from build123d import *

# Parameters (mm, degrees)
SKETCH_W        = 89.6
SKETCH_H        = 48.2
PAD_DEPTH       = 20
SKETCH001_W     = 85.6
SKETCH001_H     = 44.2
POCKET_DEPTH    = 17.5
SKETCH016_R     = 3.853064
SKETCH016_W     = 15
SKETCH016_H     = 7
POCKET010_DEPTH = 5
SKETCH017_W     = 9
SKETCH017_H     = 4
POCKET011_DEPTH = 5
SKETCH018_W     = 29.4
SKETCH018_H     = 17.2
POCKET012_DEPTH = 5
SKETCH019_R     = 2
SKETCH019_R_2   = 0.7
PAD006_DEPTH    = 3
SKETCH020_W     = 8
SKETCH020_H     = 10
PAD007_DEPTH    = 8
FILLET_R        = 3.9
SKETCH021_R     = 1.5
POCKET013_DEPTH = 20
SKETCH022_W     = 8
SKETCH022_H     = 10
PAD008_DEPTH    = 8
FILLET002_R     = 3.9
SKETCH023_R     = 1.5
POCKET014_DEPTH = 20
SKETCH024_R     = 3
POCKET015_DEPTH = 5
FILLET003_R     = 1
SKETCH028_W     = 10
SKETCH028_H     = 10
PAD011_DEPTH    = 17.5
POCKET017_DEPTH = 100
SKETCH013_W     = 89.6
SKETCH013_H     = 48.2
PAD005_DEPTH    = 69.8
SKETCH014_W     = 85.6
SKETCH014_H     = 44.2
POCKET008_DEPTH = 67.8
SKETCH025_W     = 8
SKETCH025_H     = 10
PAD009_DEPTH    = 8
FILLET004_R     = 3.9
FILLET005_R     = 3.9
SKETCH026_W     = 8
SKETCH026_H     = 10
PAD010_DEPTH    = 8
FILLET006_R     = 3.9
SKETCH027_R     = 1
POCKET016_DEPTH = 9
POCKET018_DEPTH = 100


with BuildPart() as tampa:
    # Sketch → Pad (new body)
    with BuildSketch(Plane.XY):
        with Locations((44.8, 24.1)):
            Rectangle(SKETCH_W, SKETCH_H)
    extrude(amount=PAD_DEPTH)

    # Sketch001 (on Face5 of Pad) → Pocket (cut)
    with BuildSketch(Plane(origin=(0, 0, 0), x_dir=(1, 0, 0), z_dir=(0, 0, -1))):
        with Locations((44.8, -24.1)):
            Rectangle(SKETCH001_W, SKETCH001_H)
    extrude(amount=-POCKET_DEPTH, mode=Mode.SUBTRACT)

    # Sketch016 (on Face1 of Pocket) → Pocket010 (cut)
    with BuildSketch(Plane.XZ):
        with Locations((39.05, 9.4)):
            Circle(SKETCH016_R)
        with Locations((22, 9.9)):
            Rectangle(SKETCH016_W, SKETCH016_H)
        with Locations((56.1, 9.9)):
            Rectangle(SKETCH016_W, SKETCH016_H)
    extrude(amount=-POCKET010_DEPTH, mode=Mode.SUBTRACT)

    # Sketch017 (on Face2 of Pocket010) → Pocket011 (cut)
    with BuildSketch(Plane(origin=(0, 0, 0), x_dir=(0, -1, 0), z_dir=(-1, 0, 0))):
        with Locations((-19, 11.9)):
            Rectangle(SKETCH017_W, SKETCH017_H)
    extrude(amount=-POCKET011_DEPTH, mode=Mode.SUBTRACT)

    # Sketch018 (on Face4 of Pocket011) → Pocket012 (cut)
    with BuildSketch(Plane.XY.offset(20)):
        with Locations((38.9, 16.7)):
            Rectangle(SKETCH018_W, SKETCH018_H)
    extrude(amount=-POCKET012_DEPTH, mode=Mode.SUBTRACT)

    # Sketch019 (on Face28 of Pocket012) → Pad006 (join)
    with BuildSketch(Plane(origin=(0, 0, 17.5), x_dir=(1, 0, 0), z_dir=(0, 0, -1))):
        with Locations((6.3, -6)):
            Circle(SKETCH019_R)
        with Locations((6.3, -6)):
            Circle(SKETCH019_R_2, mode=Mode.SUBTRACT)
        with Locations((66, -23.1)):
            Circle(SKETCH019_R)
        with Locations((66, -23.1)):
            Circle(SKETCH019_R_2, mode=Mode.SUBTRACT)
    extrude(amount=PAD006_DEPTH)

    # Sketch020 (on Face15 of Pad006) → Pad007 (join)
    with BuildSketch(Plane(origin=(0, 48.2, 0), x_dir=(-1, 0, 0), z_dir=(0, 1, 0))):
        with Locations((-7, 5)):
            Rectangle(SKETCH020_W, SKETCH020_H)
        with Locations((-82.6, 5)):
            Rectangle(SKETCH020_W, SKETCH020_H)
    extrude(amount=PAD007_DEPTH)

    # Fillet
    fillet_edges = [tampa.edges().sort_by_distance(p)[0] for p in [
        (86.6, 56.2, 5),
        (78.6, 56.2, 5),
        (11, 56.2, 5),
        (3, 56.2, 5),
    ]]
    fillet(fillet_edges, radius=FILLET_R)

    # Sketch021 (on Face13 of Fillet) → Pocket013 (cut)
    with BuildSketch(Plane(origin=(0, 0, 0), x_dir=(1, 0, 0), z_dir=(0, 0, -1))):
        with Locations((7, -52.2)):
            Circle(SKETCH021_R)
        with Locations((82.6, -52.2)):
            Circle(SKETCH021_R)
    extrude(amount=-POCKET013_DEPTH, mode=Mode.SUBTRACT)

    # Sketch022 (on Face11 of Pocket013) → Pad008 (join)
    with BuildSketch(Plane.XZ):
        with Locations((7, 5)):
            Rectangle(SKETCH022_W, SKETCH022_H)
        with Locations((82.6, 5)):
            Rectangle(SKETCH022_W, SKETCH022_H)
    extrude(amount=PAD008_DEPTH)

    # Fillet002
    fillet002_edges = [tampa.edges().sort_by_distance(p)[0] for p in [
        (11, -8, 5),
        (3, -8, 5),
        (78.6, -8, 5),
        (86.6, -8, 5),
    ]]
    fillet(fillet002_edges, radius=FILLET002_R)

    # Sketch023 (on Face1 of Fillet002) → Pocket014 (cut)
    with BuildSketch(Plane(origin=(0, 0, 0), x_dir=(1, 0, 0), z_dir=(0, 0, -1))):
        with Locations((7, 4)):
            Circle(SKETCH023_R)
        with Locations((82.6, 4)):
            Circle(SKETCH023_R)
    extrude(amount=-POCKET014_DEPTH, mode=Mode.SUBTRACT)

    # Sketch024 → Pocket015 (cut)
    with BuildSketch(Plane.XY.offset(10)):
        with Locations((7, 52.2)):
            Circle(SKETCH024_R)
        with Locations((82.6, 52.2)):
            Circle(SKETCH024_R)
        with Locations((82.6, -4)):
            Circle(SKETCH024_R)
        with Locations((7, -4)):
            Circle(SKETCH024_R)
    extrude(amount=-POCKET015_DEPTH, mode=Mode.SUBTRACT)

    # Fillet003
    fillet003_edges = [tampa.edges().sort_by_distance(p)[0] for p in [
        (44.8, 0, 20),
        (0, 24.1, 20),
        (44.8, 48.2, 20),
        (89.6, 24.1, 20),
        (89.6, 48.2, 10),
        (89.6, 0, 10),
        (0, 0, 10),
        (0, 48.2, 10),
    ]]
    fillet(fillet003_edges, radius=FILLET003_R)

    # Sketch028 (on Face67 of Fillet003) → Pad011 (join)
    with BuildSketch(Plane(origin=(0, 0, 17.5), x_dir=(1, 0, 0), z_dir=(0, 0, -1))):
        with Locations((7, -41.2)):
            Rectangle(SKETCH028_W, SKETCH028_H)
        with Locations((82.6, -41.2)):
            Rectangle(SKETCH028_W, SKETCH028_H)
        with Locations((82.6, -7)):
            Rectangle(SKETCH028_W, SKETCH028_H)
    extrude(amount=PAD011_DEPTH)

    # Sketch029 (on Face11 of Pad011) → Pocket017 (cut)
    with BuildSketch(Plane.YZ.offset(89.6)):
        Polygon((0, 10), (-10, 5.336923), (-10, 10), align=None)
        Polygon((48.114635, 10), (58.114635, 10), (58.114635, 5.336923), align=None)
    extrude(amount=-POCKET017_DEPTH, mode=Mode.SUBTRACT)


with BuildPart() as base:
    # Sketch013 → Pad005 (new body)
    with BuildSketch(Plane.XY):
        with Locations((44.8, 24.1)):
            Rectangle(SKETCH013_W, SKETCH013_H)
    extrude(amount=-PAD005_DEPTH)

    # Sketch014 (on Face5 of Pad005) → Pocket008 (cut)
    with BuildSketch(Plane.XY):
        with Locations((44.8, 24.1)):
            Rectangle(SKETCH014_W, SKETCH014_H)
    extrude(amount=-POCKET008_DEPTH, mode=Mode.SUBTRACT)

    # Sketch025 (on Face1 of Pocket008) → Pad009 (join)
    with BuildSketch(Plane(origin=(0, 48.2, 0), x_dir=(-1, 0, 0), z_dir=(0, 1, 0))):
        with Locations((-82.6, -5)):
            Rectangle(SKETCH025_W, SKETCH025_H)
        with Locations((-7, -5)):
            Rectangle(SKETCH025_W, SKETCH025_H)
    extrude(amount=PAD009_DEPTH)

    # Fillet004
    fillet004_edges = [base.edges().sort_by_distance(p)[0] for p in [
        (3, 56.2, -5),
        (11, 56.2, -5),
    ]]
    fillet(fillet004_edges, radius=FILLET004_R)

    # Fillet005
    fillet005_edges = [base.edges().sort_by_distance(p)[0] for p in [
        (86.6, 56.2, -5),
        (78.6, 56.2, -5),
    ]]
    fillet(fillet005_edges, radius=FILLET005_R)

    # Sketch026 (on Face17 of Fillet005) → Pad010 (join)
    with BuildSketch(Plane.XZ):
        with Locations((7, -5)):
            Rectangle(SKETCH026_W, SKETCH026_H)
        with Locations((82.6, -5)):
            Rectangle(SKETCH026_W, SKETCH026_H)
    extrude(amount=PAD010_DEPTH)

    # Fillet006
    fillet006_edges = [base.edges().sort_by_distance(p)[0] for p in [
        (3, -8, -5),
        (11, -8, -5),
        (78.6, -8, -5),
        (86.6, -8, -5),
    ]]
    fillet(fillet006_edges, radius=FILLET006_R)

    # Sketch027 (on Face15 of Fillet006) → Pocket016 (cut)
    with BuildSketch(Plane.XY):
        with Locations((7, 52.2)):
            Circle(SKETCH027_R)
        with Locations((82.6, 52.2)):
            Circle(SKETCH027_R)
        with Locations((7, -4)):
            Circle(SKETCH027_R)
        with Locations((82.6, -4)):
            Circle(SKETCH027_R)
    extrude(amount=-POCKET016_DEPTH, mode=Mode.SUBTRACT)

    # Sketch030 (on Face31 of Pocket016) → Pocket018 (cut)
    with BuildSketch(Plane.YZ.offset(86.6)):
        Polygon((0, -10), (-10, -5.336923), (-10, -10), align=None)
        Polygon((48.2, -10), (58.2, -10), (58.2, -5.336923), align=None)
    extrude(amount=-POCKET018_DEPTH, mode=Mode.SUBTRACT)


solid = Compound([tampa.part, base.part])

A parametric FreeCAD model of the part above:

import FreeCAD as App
import Part
import Sketcher

V = App.Vector
Q = App.Units.Quantity


def edges_at(feature, points):
    """Names of the edges that pass closest to the given points."""
    edges = feature.Shape.Edges
    near = lambda p: min(range(len(edges)), key=lambda i: edges[i].distToShape(Part.Vertex(*p))[0])
    return sorted({f"Edge{near(p) + 1}" for p in points})


def add_polygon(sketch, points):
    """Adds a closed chain of lines whose ends are joined by coincident constraints."""
    first, n = sketch.GeometryCount, len(points)
    for a, b in zip(points, points[1:] + points[:1]):
        sketch.addGeometry(Part.LineSegment(App.Vector(*a, 0), App.Vector(*b, 0)), False)
    for i in range(n):
        sketch.addConstraint(Sketcher.Constraint("Coincident", first + i, 2, first + (i + 1) % n, 1))

doc = App.newDocument("Part")
body = doc.addObject("PartDesign::Body", "Body")

sketch1 = body.newObject("Sketcher::SketchObject", "Sketch")
sketch1.AttachmentSupport = (doc.getObject("XY_Plane"), [""])
sketch1.MapMode = "FlatFace"
add_polygon(sketch1, [(0, 48), (0, 0), (90, 0), (90, 48)])
sketch1.addConstraint(Sketcher.Constraint("Vertical", 0))
sketch1.addConstraint(Sketcher.Constraint("Horizontal", 1))
sketch1.addConstraint(Sketcher.Constraint("Vertical", 2))
sketch1.addConstraint(Sketcher.Constraint("Horizontal", 3))
sketch1.addConstraint(Sketcher.Constraint("Coincident", 0, 2, -1, 1))
sketch1.addConstraint(Sketcher.Constraint("DistanceX", 1, 1, 1, 2, 89.6))
sketch1.addConstraint(Sketcher.Constraint("DistanceY", 0, 2, 0, 1, 48.2))
pad1 = body.newObject("PartDesign::Pad", "Pad")
pad1.Profile = sketch1
pad1.Length = 20

sketch2 = body.newObject("Sketcher::SketchObject", "Sketch001")
sketch2.AttachmentSupport = (doc.getObject("XY_Plane"), [""])
sketch2.MapMode = "FlatFace"
add_polygon(sketch2, [(2, 2), (2, 46), (88, 46), (88, 2)])
sketch2.addConstraint(Sketcher.Constraint("Vertical", 0))
sketch2.addConstraint(Sketcher.Constraint("Horizontal", 1))
sketch2.addConstraint(Sketcher.Constraint("Vertical", 2))
sketch2.addConstraint(Sketcher.Constraint("Horizontal", 3))
sketch2.addConstraint(Sketcher.Constraint("DistanceX", 1, 1, 1, 2, 85.6))
sketch2.addConstraint(Sketcher.Constraint("DistanceY", 0, 1, 0, 2, 44.2))
sketch2.addConstraint(Sketcher.Constraint("DistanceX", -1, 1, 0, 2, 2.0))
sketch2.addConstraint(Sketcher.Constraint("DistanceY", -1, 1, 2, 2, 2.0))
pocket1 = body.newObject("PartDesign::Pocket", "Pocket")
pocket1.Profile = sketch2
pocket1.Length = 17.5
pocket1.Reversed = True

sketch3 = body.newObject("Sketcher::SketchObject", "Sketch002")
sketch3.AttachmentSupport = (doc.getObject("XZ_Plane"), [""])
sketch3.MapMode = "FlatFace"
sketch3.addGeometry(Part.Circle(V(39, 9.4, 0), V(0, 0, 1), 3.9), False)
add_polygon(sketch3, [(14.5, 13.4), (14.5, 6.4), (29.5, 6.4), (29.5, 13.4)])
add_polygon(sketch3, [(48.6, 13.4), (48.6, 6.4), (63.6, 6.4), (63.6, 13.4)])
sketch3.addConstraint(Sketcher.Constraint("Vertical", 1))
sketch3.addConstraint(Sketcher.Constraint("Horizontal", 2))
sketch3.addConstraint(Sketcher.Constraint("Vertical", 3))
sketch3.addConstraint(Sketcher.Constraint("Horizontal", 4))
sketch3.addConstraint(Sketcher.Constraint("Vertical", 5))
sketch3.addConstraint(Sketcher.Constraint("Horizontal", 6))
sketch3.addConstraint(Sketcher.Constraint("Vertical", 7))
sketch3.addConstraint(Sketcher.Constraint("Horizontal", 8))
sketch3.addConstraint(Sketcher.Constraint("Horizontal", 2, 2, 5, 2))
sketch3.addConstraint(Sketcher.Constraint("Horizontal", 4, 2, 7, 2))
sketch3.addConstraint(Sketcher.Constraint("Equal", 4, 6))
sketch3.addConstraint(Sketcher.Constraint("DistanceX", 2, 1, 2, 2, 15.0))
sketch3.addConstraint(Sketcher.Constraint("DistanceY", 1, 2, 1, 1, 7.0))
sketch3.addConstraint(Sketcher.Constraint("DistanceY", 1, 2, 0, 3, 3.0))
sketch3.addConstraint(Sketcher.Constraint("DistanceY", -1, 1, 0, 3, 9.4))
sketch3.addConstraint(Sketcher.Constraint("DistanceX", -1, 1, 1, 2, 14.5))
sketch3.addConstraint(Sketcher.Constraint("DistanceX", -1, 1, 5, 2, 48.6))
sketch3.addConstraint(Sketcher.Constraint("DistanceX", -1, 1, 0, 3, 39.05))
sketch3.addConstraint(Sketcher.Constraint("Diameter", 0, 7.706128))
pocket2 = body.newObject("PartDesign::Pocket", "Pocket001")
pocket2.Profile = sketch3
pocket2.Length = 5

sketch4 = body.newObject("Sketcher::SketchObject", "Sketch003")
sketch4.AttachmentSupport = (doc.getObject("YZ_Plane"), [""])
sketch4.MapMode = "FlatFace"
add_polygon(sketch4, [(23.5, 13.9), (23.5, 9.9), (14.5, 9.9), (14.5, 13.9)])
sketch4.addConstraint(Sketcher.Constraint("Vertical", 0))
sketch4.addConstraint(Sketcher.Constraint("Horizontal", 1))
sketch4.addConstraint(Sketcher.Constraint("Vertical", 2))
sketch4.addConstraint(Sketcher.Constraint("Horizontal", 3))
sketch4.addConstraint(Sketcher.Constraint("DistanceX", 1, 2, 1, 1, 9.0))
sketch4.addConstraint(Sketcher.Constraint("DistanceY", 0, 2, 0, 1, 4.0))
sketch4.addConstraint(Sketcher.Constraint("DistanceX", -1, 1, 0, 2, 23.5))
sketch4.addConstraint(Sketcher.Constraint("DistanceY", -1, 1, 0, 2, 9.9))
pocket3 = body.newObject("PartDesign::Pocket", "Pocket002")
pocket3.Profile = sketch4
pocket3.Length = 5
pocket3.Reversed = True

sketch5 = body.newObject("Sketcher::SketchObject", "Sketch004")
sketch5.AttachmentSupport = (doc.getObject("XY_Plane"), [""])
sketch5.MapMode = "FlatFace"
sketch5.AttachmentOffset = App.Placement(V(0, 0, 20), App.Rotation())
add_polygon(sketch5, [(24, 25), (24, 8), (54, 8), (54, 25)])
sketch5.addConstraint(Sketcher.Constraint("Vertical", 0))
sketch5.addConstraint(Sketcher.Constraint("Horizontal", 1))
sketch5.addConstraint(Sketcher.Constraint("Vertical", 2))
sketch5.addConstraint(Sketcher.Constraint("Horizontal", 3))
sketch5.addConstraint(Sketcher.Constraint("DistanceX", 1, 1, 1, 2, 29.4))
sketch5.addConstraint(Sketcher.Constraint("DistanceY", 0, 2, 0, 1, 17.2))
sketch5.addConstraint(Sketcher.Constraint("DistanceX", -1, 1, 0, 2, 24.2))
sketch5.addConstraint(Sketcher.Constraint("DistanceY", -1, 1, 0, 2, 8.1))
pocket4 = body.newObject("PartDesign::Pocket", "Pocket003")
pocket4.Profile = sketch5
pocket4.Length = 5

sketch6 = body.newObject("Sketcher::SketchObject", "Sketch005")
sketch6.AttachmentSupport = (doc.getObject("XY_Plane"), [""])
sketch6.MapMode = "FlatFace"
sketch6.AttachmentOffset = App.Placement(V(0, 0, 17.5), App.Rotation())
sketch6.addGeometry(Part.Circle(V(6.3, 6, 0), V(0, 0, 1), 2), False)
sketch6.addGeometry(Part.Circle(V(6.3, 6, 0), V(0, 0, 1), 0.7), False)
sketch6.addGeometry(Part.Circle(V(66, 23.1, 0), V(0, 0, 1), 2), False)
sketch6.addGeometry(Part.Circle(V(66, 23.1, 0), V(0, 0, 1), 0.7), False)
sketch6.addConstraint(Sketcher.Constraint("Coincident", 1, 3, 0, 3))
sketch6.addConstraint(Sketcher.Constraint("Coincident", 3, 3, 2, 3))
sketch6.addConstraint(Sketcher.Constraint("Equal", 0, 2))
sketch6.addConstraint(Sketcher.Constraint("Equal", 1, 3))
sketch6.addConstraint(Sketcher.Constraint("Diameter", 0, 4.0))
sketch6.addConstraint(Sketcher.Constraint("Diameter", 1, 1.4))
sketch6.addConstraint(Sketcher.Constraint("DistanceY", -1, 1, 0, 3, 6.0))
sketch6.addConstraint(Sketcher.Constraint("DistanceX", -1, 1, 2, 3, 66.0))
sketch6.addConstraint(Sketcher.Constraint("DistanceX", -1, 1, 0, 3, 6.3))
sketch6.addConstraint(Sketcher.Constraint("DistanceY", -1, 1, 2, 3, 23.1))
pad2 = body.newObject("PartDesign::Pad", "Pad001")
pad2.Profile = sketch6
pad2.Length = 3
pad2.Reversed = True

sketch7 = body.newObject("Sketcher::SketchObject", "Sketch006")
sketch7.AttachmentSupport = (doc.getObject("XZ_Plane"), [""])
sketch7.MapMode = "FlatFace"
sketch7.AttachmentOffset = App.Placement(V(0, 0, -48.2), App.Rotation())
add_polygon(sketch7, [(11, 10), (11, 0), (3, 0), (3, 10)])
add_polygon(sketch7, [(87, 10), (87, 0), (79, 0), (79, 10)])
sketch7.addConstraint(Sketcher.Constraint("Vertical", 0))
sketch7.addConstraint(Sketcher.Constraint("Horizontal", 1))
sketch7.addConstraint(Sketcher.Constraint("Vertical", 2))
sketch7.addConstraint(Sketcher.Constraint("Horizontal", 3))
sketch7.addConstraint(Sketcher.Constraint("Vertical", 4))
sketch7.addConstraint(Sketcher.Constraint("Horizontal", 5))
sketch7.addConstraint(Sketcher.Constraint("Vertical", 6))
sketch7.addConstraint(Sketcher.Constraint("Horizontal", 7))
sketch7.addConstraint(Sketcher.Constraint("PointOnObject", 0, 2, -1))
sketch7.addConstraint(Sketcher.Constraint("PointOnObject", 4, 2, -1))
sketch7.addConstraint(Sketcher.Constraint("Horizontal", 3, 2, 6, 2))
sketch7.addConstraint(Sketcher.Constraint("Equal", 3, 5))
sketch7.addConstraint(Sketcher.Constraint("DistanceX", 1, 2, 1, 1, 8.0))
sketch7.addConstraint(Sketcher.Constraint("DistanceY", 0, 2, 0, 1, 10.0))
sketch7.addConstraint(Sketcher.Constraint("DistanceX", -1, 1, 0, 2, 11.0))
sketch7.addConstraint(Sketcher.Constraint("DistanceX", -1, 1, 4, 2, 86.6))
pad3 = body.newObject("PartDesign::Pad", "Pad002")
pad3.Profile = sketch7
pad3.Length = 8
pad3.Reversed = True
doc.recompute()

fillet = body.newObject("PartDesign::Fillet", "Fillet")
fillet.Base = (pad3, edges_at(pad3, [
    (86.6, 56.2, 5),
    (78.6, 56.2, 5),
    (11, 56.2, 5),
    (3, 56.2, 5),
]))
fillet.Radius = 3.9

sketch8 = body.newObject("Sketcher::SketchObject", "Sketch007")
sketch8.AttachmentSupport = (doc.getObject("XY_Plane"), [""])
sketch8.MapMode = "FlatFace"
sketch8.addGeometry(Part.Circle(V(7, 52.2, 0), V(0, 0, 1), 1.5), False)
sketch8.addGeometry(Part.Circle(V(82.6, 52.2, 0), V(0, 0, 1), 1.5), False)
sketch8.addConstraint(Sketcher.Constraint("Equal", 0, 1))
sketch8.addConstraint(Sketcher.Constraint("Horizontal", 0, 3, 1, 3))
sketch8.addConstraint(Sketcher.Constraint("Diameter", 0, 3.0))
sketch8.addConstraint(Sketcher.Constraint("DistanceX", -1, 1, 0, 3, 7.0))
sketch8.addConstraint(Sketcher.Constraint("DistanceY", -1, 1, 0, 3, 52.2))
sketch8.addConstraint(Sketcher.Constraint("DistanceX", -1, 1, 1, 3, 82.6))
pocket5 = body.newObject("PartDesign::Pocket", "Pocket004")
pocket5.Profile = sketch8
pocket5.Length = 20
pocket5.Reversed = True

sketch9 = body.newObject("Sketcher::SketchObject", "Sketch008")
sketch9.AttachmentSupport = (doc.getObject("XZ_Plane"), [""])
sketch9.MapMode = "FlatFace"
add_polygon(sketch9, [(3, 10), (3, 0), (11, 0), (11, 10)])
add_polygon(sketch9, [(79, 10), (79, 0), (87, 0), (87, 10)])
sketch9.addConstraint(Sketcher.Constraint("Vertical", 0))
sketch9.addConstraint(Sketcher.Constraint("Horizontal", 1))
sketch9.addConstraint(Sketcher.Constraint("Vertical", 2))
sketch9.addConstraint(Sketcher.Constraint("Horizontal", 3))
sketch9.addConstraint(Sketcher.Constraint("Vertical", 4))
sketch9.addConstraint(Sketcher.Constraint("Horizontal", 5))
sketch9.addConstraint(Sketcher.Constraint("Vertical", 6))
sketch9.addConstraint(Sketcher.Constraint("Horizontal", 7))
sketch9.addConstraint(Sketcher.Constraint("PointOnObject", 0, 2, -1))
sketch9.addConstraint(Sketcher.Constraint("PointOnObject", 4, 2, -1))
sketch9.addConstraint(Sketcher.Constraint("Horizontal", 3, 2, 6, 2))
sketch9.addConstraint(Sketcher.Constraint("Equal", 3, 5))
sketch9.addConstraint(Sketcher.Constraint("DistanceX", 1, 1, 1, 2, 8.0))
sketch9.addConstraint(Sketcher.Constraint("DistanceY", 0, 2, 0, 1, 10.0))
sketch9.addConstraint(Sketcher.Constraint("DistanceX", -1, 1, 0, 2, 3.0))
sketch9.addConstraint(Sketcher.Constraint("DistanceX", -1, 1, 4, 2, 78.6))
pad4 = body.newObject("PartDesign::Pad", "Pad003")
pad4.Profile = sketch9
pad4.Length = 8
doc.recompute()

fillet2 = body.newObject("PartDesign::Fillet", "Fillet001")
fillet2.Base = (pad4, edges_at(pad4, [
    (11, -8, 5),
    (3, -8, 5),
    (78.6, -8, 5),
    (86.6, -8, 5),
]))
fillet2.Radius = 3.9

sketch10 = body.newObject("Sketcher::SketchObject", "Sketch009")
sketch10.AttachmentSupport = (doc.getObject("XY_Plane"), [""])
sketch10.MapMode = "FlatFace"
sketch10.addGeometry(Part.Circle(V(7, -4, 0), V(0, 0, 1), 1.5), False)
sketch10.addGeometry(Part.Circle(V(82.6, -4, 0), V(0, 0, 1), 1.5), False)
sketch10.addConstraint(Sketcher.Constraint("Equal", 0, 1))
sketch10.addConstraint(Sketcher.Constraint("Horizontal", 0, 3, 1, 3))
sketch10.addConstraint(Sketcher.Constraint("Diameter", 0, 3.0))
sketch10.addConstraint(Sketcher.Constraint("DistanceX", -1, 1, 0, 3, 7.0))
sketch10.addConstraint(Sketcher.Constraint("DistanceY", 0, 3, -1, 1, 4.0))
sketch10.addConstraint(Sketcher.Constraint("DistanceX", -1, 1, 1, 3, 82.6))
pocket6 = body.newObject("PartDesign::Pocket", "Pocket005")
pocket6.Profile = sketch10
pocket6.Length = 20
pocket6.Reversed = True

sketch11 = body.newObject("Sketcher::SketchObject", "Sketch010")
sketch11.AttachmentSupport = (doc.getObject("XY_Plane"), [""])
sketch11.MapMode = "FlatFace"
sketch11.AttachmentOffset = App.Placement(V(0, 0, 10), App.Rotation())
sketch11.addGeometry(Part.Circle(V(7, 52.2, 0), V(0, 0, 1), 3), False)
sketch11.addGeometry(Part.Circle(V(82.6, 52.2, 0), V(0, 0, 1), 3), False)
sketch11.addGeometry(Part.Circle(V(82.6, -4, 0), V(0, 0, 1), 3), False)
sketch11.addGeometry(Part.Circle(V(7, -4, 0), V(0, 0, 1), 3), False)
sketch11.addConstraint(Sketcher.Constraint("Equal", 0, 1))
sketch11.addConstraint(Sketcher.Constraint("Equal", 1, 2))
sketch11.addConstraint(Sketcher.Constraint("Equal", 2, 3))
sketch11.addConstraint(Sketcher.Constraint("Horizontal", 0, 3, 1, 3))
sketch11.addConstraint(Sketcher.Constraint("Horizontal", 2, 3, 3, 3))
sketch11.addConstraint(Sketcher.Constraint("Vertical", 1, 3, 2, 3))
sketch11.addConstraint(Sketcher.Constraint("Vertical", 0, 3, 3, 3))
sketch11.addConstraint(Sketcher.Constraint("Diameter", 0, 6.0))
sketch11.addConstraint(Sketcher.Constraint("DistanceX", -1, 1, 0, 3, 7.0))
sketch11.addConstraint(Sketcher.Constraint("DistanceY", 2, 3, -1, 1, 4.0))
sketch11.addConstraint(Sketcher.Constraint("DistanceY", -1, 1, 0, 3, 52.2))
sketch11.addConstraint(Sketcher.Constraint("DistanceX", -1, 1, 1, 3, 82.6))
pocket7 = body.newObject("PartDesign::Pocket", "Pocket006")
pocket7.Profile = sketch11
pocket7.Length = 5
doc.recompute()

fillet3 = body.newObject("PartDesign::Fillet", "Fillet002")
fillet3.Base = (pocket7, edges_at(pocket7, [
    (44.8, 0, 20),
    (0, 24.1, 20),
    (44.8, 48.2, 20),
    (89.6, 24.1, 20),
    (89.6, 48.2, 10),
    (89.6, 0, 10),
    (0, 0, 10),
    (0, 48.2, 10),
]))
fillet3.Radius = 1

sketch12 = body.newObject("Sketcher::SketchObject", "Sketch011")
sketch12.AttachmentSupport = (doc.getObject("XY_Plane"), [""])
sketch12.MapMode = "FlatFace"
sketch12.AttachmentOffset = App.Placement(V(0, 0, 17.5), App.Rotation())
add_polygon(sketch12, [(2, 36), (2, 46), (12, 46), (12, 36)])
add_polygon(sketch12, [(78, 36), (78, 46), (88, 46), (88, 36)])
add_polygon(sketch12, [(78, 2), (78, 12), (88, 12), (88, 2)])
sketch12.addConstraint(Sketcher.Constraint("Vertical", 0))
sketch12.addConstraint(Sketcher.Constraint("Horizontal", 1))
sketch12.addConstraint(Sketcher.Constraint("Vertical", 2))
sketch12.addConstraint(Sketcher.Constraint("Horizontal", 3))
sketch12.addConstraint(Sketcher.Constraint("Vertical", 4))
sketch12.addConstraint(Sketcher.Constraint("Horizontal", 5))
sketch12.addConstraint(Sketcher.Constraint("Vertical", 6))
sketch12.addConstraint(Sketcher.Constraint("Horizontal", 7))
sketch12.addConstraint(Sketcher.Constraint("Vertical", 8))
sketch12.addConstraint(Sketcher.Constraint("Horizontal", 9))
sketch12.addConstraint(Sketcher.Constraint("Vertical", 10))
sketch12.addConstraint(Sketcher.Constraint("Horizontal", 11))
sketch12.addConstraint(Sketcher.Constraint("Horizontal", 1, 2, 4, 2))
sketch12.addConstraint(Sketcher.Constraint("Horizontal", 3, 2, 6, 2))
sketch12.addConstraint(Sketcher.Constraint("Vertical", 7, 2, 8, 2))
sketch12.addConstraint(Sketcher.Constraint("Vertical", 6, 2, 9, 2))
sketch12.addConstraint(Sketcher.Constraint("Equal", 3, 5))
sketch12.addConstraint(Sketcher.Constraint("Equal", 11, 0))
sketch12.addConstraint(Sketcher.Constraint("Equal", 6, 8))
sketch12.addConstraint(Sketcher.Constraint("DistanceX", 1, 1, 1, 2, 10.0))
sketch12.addConstraint(Sketcher.Constraint("DistanceX", -1, 1, 0, 2, 2.0))
sketch12.addConstraint(Sketcher.Constraint("DistanceY", -1, 1, 8, 2, 12.0))
sketch12.addConstraint(Sketcher.Constraint("DistanceY", -1, 1, 0, 2, 46.2))
sketch12.addConstraint(Sketcher.Constraint("DistanceX", -1, 1, 4, 2, 77.6))
pad5 = body.newObject("PartDesign::Pad", "Pad004")
pad5.Profile = sketch12
pad5.Length = 17.5
pad5.Reversed = True

sketch13 = body.newObject("Sketcher::SketchObject", "Sketch012")
sketch13.AttachmentSupport = (doc.getObject("YZ_Plane"), [""])
sketch13.MapMode = "FlatFace"
sketch13.AttachmentOffset = App.Placement(V(0, 0, 89.6), App.Rotation())
add_polygon(sketch13, [(-10, 5.3), (0, 10), (-10, 10)])
add_polygon(sketch13, [(58.1, 10), (48.1, 10), (58.1, 5.3)])
sketch13.addConstraint(Sketcher.Constraint("Horizontal", 1))
sketch13.addConstraint(Sketcher.Constraint("Vertical", 2))
sketch13.addConstraint(Sketcher.Constraint("Horizontal", 3))
sketch13.addConstraint(Sketcher.Constraint("Vertical", 5))
sketch13.addConstraint(Sketcher.Constraint("PointOnObject", 0, 2, -2))
sketch13.addConstraint(Sketcher.Constraint("Horizontal", 1, 2, 3, 2))
sketch13.addConstraint(Sketcher.Constraint("Horizontal", 2, 2, 4, 2))
sketch13.addConstraint(Sketcher.Constraint("Equal", 1, 3))
sketch13.addConstraint(Sketcher.Constraint("DistanceX", 1, 2, 1, 1, 10.0))
sketch13.addConstraint(Sketcher.Constraint("Angle", 0, Q("25.000002 deg")))
sketch13.addConstraint(Sketcher.Constraint("DistanceY", -1, 1, 0, 2, 10.0))
sketch13.addConstraint(Sketcher.Constraint("DistanceX", -1, 1, 3, 2, 48.114635))
pocket8 = body.newObject("PartDesign::Pocket", "Pocket007")
pocket8.Profile = sketch13
pocket8.Length = 100
body2 = doc.addObject("PartDesign::Body", "Body001")

sketch14 = body2.newObject("Sketcher::SketchObject", "Sketch013")
sketch14.AttachmentSupport = (doc.getObject("XY_Plane001"), [""])
sketch14.MapMode = "FlatFace"
add_polygon(sketch14, [(0, 48), (0, 0), (90, 0), (90, 48)])
sketch14.addConstraint(Sketcher.Constraint("Vertical", 0))
sketch14.addConstraint(Sketcher.Constraint("Horizontal", 1))
sketch14.addConstraint(Sketcher.Constraint("Vertical", 2))
sketch14.addConstraint(Sketcher.Constraint("Horizontal", 3))
sketch14.addConstraint(Sketcher.Constraint("Coincident", 0, 2, -1, 1))
sketch14.addConstraint(Sketcher.Constraint("DistanceX", 1, 1, 1, 2, 89.6))
sketch14.addConstraint(Sketcher.Constraint("DistanceY", 0, 2, 0, 1, 48.2))
pad6 = body2.newObject("PartDesign::Pad", "Pad005")
pad6.Profile = sketch14
pad6.Length = 69.8
pad6.Reversed = True

sketch15 = body2.newObject("Sketcher::SketchObject", "Sketch014")
sketch15.AttachmentSupport = (doc.getObject("XY_Plane001"), [""])
sketch15.MapMode = "FlatFace"
add_polygon(sketch15, [(2, 46), (2, 2), (88, 2), (88, 46)])
sketch15.addConstraint(Sketcher.Constraint("Vertical", 0))
sketch15.addConstraint(Sketcher.Constraint("Horizontal", 1))
sketch15.addConstraint(Sketcher.Constraint("Vertical", 2))
sketch15.addConstraint(Sketcher.Constraint("Horizontal", 3))
sketch15.addConstraint(Sketcher.Constraint("DistanceX", 1, 1, 1, 2, 85.6))
sketch15.addConstraint(Sketcher.Constraint("DistanceY", 0, 2, 0, 1, 44.2))
sketch15.addConstraint(Sketcher.Constraint("DistanceX", -1, 1, 0, 2, 2.0))
sketch15.addConstraint(Sketcher.Constraint("DistanceY", -1, 1, 0, 2, 2.0))
pocket9 = body2.newObject("PartDesign::Pocket", "Pocket008")
pocket9.Profile = sketch15
pocket9.Length = 67.8

sketch16 = body2.newObject("Sketcher::SketchObject", "Sketch015")
sketch16.AttachmentSupport = (doc.getObject("XZ_Plane001"), [""])
sketch16.MapMode = "FlatFace"
sketch16.AttachmentOffset = App.Placement(V(0, 0, -48.2), App.Rotation())
add_polygon(sketch16, [(87, 0), (87, -10), (79, -10), (79, 0)])
add_polygon(sketch16, [(11, 0), (11, -10), (3, -10), (3, 0)])
sketch16.addConstraint(Sketcher.Constraint("Vertical", 0))
sketch16.addConstraint(Sketcher.Constraint("Horizontal", 1))
sketch16.addConstraint(Sketcher.Constraint("Vertical", 2))
sketch16.addConstraint(Sketcher.Constraint("Horizontal", 3))
sketch16.addConstraint(Sketcher.Constraint("Vertical", 4))
sketch16.addConstraint(Sketcher.Constraint("Horizontal", 5))
sketch16.addConstraint(Sketcher.Constraint("Vertical", 6))
sketch16.addConstraint(Sketcher.Constraint("Horizontal", 7))
sketch16.addConstraint(Sketcher.Constraint("PointOnObject", 2, 2, -1))
sketch16.addConstraint(Sketcher.Constraint("PointOnObject", 6, 2, -1))
sketch16.addConstraint(Sketcher.Constraint("Horizontal", 1, 2, 4, 2))
sketch16.addConstraint(Sketcher.Constraint("Equal", 3, 5))
sketch16.addConstraint(Sketcher.Constraint("DistanceX", 1, 2, 1, 1, 8.0))
sketch16.addConstraint(Sketcher.Constraint("DistanceY", 0, 2, 0, 1, 10.0))
sketch16.addConstraint(Sketcher.Constraint("DistanceX", -1, 1, 4, 2, 11.0))
sketch16.addConstraint(Sketcher.Constraint("DistanceX", -1, 1, 0, 2, 86.6))
pad7 = body2.newObject("PartDesign::Pad", "Pad006")
pad7.Profile = sketch16
pad7.Length = 8
pad7.Reversed = True
doc.recompute()

fillet4 = body2.newObject("PartDesign::Fillet", "Fillet003")
fillet4.Base = (pad7, edges_at(pad7, [(3, 56.2, -5), (11, 56.2, -5)]))
fillet4.Radius = 3.9
doc.recompute()

fillet5 = body2.newObject("PartDesign::Fillet", "Fillet004")
fillet5.Base = (fillet4, edges_at(fillet4, [(86.6, 56.2, -5), (78.6, 56.2, -5)]))
fillet5.Radius = 3.9

sketch17 = body2.newObject("Sketcher::SketchObject", "Sketch016")
sketch17.AttachmentSupport = (doc.getObject("XZ_Plane001"), [""])
sketch17.MapMode = "FlatFace"
add_polygon(sketch17, [(3, 0), (3, -10), (11, -10), (11, 0)])
add_polygon(sketch17, [(79, 0), (79, -10), (87, -10), (87, 0)])
sketch17.addConstraint(Sketcher.Constraint("Vertical", 0))
sketch17.addConstraint(Sketcher.Constraint("Horizontal", 1))
sketch17.addConstraint(Sketcher.Constraint("Vertical", 2))
sketch17.addConstraint(Sketcher.Constraint("Horizontal", 3))
sketch17.addConstraint(Sketcher.Constraint("Vertical", 4))
sketch17.addConstraint(Sketcher.Constraint("Horizontal", 5))
sketch17.addConstraint(Sketcher.Constraint("Vertical", 6))
sketch17.addConstraint(Sketcher.Constraint("Horizontal", 7))
sketch17.addConstraint(Sketcher.Constraint("PointOnObject", 2, 2, -1))
sketch17.addConstraint(Sketcher.Constraint("PointOnObject", 6, 2, -1))
sketch17.addConstraint(Sketcher.Constraint("Horizontal", 1, 2, 4, 2))
sketch17.addConstraint(Sketcher.Constraint("Equal", 3, 5))
sketch17.addConstraint(Sketcher.Constraint("DistanceX", 1, 1, 1, 2, 8.0))
sketch17.addConstraint(Sketcher.Constraint("DistanceY", 0, 2, 0, 1, 10.0))
sketch17.addConstraint(Sketcher.Constraint("DistanceX", -1, 1, 0, 2, 3.0))
sketch17.addConstraint(Sketcher.Constraint("DistanceX", -1, 1, 4, 2, 78.6))
pad8 = body2.newObject("PartDesign::Pad", "Pad007")
pad8.Profile = sketch17
pad8.Length = 8
doc.recompute()

fillet6 = body2.newObject("PartDesign::Fillet", "Fillet005")
fillet6.Base = (pad8, edges_at(pad8, [
    (3, -8, -5),
    (11, -8, -5),
    (78.6, -8, -5),
    (86.6, -8, -5),
]))
fillet6.Radius = 3.9

sketch18 = body2.newObject("Sketcher::SketchObject", "Sketch017")
sketch18.AttachmentSupport = (doc.getObject("XY_Plane001"), [""])
sketch18.MapMode = "FlatFace"
sketch18.addGeometry(Part.Circle(V(7, 52.2, 0), V(0, 0, 1), 1), False)
sketch18.addGeometry(Part.Circle(V(82.6, 52.2, 0), V(0, 0, 1), 1), False)
sketch18.addGeometry(Part.Circle(V(7, -4, 0), V(0, 0, 1), 1), False)
sketch18.addGeometry(Part.Circle(V(82.6, -4, 0), V(0, 0, 1), 1), False)
sketch18.addConstraint(Sketcher.Constraint("Equal", 0, 1))
sketch18.addConstraint(Sketcher.Constraint("Equal", 1, 2))
sketch18.addConstraint(Sketcher.Constraint("Equal", 2, 3))
sketch18.addConstraint(Sketcher.Constraint("Horizontal", 0, 3, 1, 3))
sketch18.addConstraint(Sketcher.Constraint("Horizontal", 2, 3, 3, 3))
sketch18.addConstraint(Sketcher.Constraint("Vertical", 0, 3, 2, 3))
sketch18.addConstraint(Sketcher.Constraint("Vertical", 1, 3, 3, 3))
sketch18.addConstraint(Sketcher.Constraint("Diameter", 0, 2.0))
sketch18.addConstraint(Sketcher.Constraint("DistanceX", -1, 1, 0, 3, 7.0))
sketch18.addConstraint(Sketcher.Constraint("DistanceY", 2, 3, -1, 1, 4.0))
sketch18.addConstraint(Sketcher.Constraint("DistanceY", -1, 1, 0, 3, 52.2))
sketch18.addConstraint(Sketcher.Constraint("DistanceX", -1, 1, 1, 3, 82.6))
pocket10 = body2.newObject("PartDesign::Pocket", "Pocket009")
pocket10.Profile = sketch18
pocket10.Length = 9

sketch19 = body2.newObject("Sketcher::SketchObject", "Sketch018")
sketch19.AttachmentSupport = (doc.getObject("YZ_Plane001"), [""])
sketch19.MapMode = "FlatFace"
sketch19.AttachmentOffset = App.Placement(V(0, 0, 86.6), App.Rotation())
add_polygon(sketch19, [(0, -10), (-10, -5.3), (-10, -10)])
add_polygon(sketch19, [(48.2, -10), (58.2, -10), (58.2, -5.3)])
sketch19.addConstraint(Sketcher.Constraint("Vertical", 1))
sketch19.addConstraint(Sketcher.Constraint("Horizontal", 2))
sketch19.addConstraint(Sketcher.Constraint("Horizontal", 3))
sketch19.addConstraint(Sketcher.Constraint("Vertical", 4))
sketch19.addConstraint(Sketcher.Constraint("PointOnObject", 2, 2, -2))
sketch19.addConstraint(Sketcher.Constraint("Horizontal", 2, 2, 3, 2))
sketch19.addConstraint(Sketcher.Constraint("Horizontal", 0, 2, 4, 2))
sketch19.addConstraint(Sketcher.Constraint("Equal", 2, 3))
sketch19.addConstraint(Sketcher.Constraint("DistanceX", 2, 1, 2, 2, 10.0))
sketch19.addConstraint(Sketcher.Constraint("Angle", 0, Q("154.999998 deg")))
sketch19.addConstraint(Sketcher.Constraint("DistanceY", 1, 2, -1, 1, 10.0))
sketch19.addConstraint(Sketcher.Constraint("DistanceX", -1, 1, 3, 2, 58.2))
pocket11 = body2.newObject("PartDesign::Pocket", "Pocket010")
pocket11.Profile = sketch19
pocket11.Length = 100

doc.recompute()
